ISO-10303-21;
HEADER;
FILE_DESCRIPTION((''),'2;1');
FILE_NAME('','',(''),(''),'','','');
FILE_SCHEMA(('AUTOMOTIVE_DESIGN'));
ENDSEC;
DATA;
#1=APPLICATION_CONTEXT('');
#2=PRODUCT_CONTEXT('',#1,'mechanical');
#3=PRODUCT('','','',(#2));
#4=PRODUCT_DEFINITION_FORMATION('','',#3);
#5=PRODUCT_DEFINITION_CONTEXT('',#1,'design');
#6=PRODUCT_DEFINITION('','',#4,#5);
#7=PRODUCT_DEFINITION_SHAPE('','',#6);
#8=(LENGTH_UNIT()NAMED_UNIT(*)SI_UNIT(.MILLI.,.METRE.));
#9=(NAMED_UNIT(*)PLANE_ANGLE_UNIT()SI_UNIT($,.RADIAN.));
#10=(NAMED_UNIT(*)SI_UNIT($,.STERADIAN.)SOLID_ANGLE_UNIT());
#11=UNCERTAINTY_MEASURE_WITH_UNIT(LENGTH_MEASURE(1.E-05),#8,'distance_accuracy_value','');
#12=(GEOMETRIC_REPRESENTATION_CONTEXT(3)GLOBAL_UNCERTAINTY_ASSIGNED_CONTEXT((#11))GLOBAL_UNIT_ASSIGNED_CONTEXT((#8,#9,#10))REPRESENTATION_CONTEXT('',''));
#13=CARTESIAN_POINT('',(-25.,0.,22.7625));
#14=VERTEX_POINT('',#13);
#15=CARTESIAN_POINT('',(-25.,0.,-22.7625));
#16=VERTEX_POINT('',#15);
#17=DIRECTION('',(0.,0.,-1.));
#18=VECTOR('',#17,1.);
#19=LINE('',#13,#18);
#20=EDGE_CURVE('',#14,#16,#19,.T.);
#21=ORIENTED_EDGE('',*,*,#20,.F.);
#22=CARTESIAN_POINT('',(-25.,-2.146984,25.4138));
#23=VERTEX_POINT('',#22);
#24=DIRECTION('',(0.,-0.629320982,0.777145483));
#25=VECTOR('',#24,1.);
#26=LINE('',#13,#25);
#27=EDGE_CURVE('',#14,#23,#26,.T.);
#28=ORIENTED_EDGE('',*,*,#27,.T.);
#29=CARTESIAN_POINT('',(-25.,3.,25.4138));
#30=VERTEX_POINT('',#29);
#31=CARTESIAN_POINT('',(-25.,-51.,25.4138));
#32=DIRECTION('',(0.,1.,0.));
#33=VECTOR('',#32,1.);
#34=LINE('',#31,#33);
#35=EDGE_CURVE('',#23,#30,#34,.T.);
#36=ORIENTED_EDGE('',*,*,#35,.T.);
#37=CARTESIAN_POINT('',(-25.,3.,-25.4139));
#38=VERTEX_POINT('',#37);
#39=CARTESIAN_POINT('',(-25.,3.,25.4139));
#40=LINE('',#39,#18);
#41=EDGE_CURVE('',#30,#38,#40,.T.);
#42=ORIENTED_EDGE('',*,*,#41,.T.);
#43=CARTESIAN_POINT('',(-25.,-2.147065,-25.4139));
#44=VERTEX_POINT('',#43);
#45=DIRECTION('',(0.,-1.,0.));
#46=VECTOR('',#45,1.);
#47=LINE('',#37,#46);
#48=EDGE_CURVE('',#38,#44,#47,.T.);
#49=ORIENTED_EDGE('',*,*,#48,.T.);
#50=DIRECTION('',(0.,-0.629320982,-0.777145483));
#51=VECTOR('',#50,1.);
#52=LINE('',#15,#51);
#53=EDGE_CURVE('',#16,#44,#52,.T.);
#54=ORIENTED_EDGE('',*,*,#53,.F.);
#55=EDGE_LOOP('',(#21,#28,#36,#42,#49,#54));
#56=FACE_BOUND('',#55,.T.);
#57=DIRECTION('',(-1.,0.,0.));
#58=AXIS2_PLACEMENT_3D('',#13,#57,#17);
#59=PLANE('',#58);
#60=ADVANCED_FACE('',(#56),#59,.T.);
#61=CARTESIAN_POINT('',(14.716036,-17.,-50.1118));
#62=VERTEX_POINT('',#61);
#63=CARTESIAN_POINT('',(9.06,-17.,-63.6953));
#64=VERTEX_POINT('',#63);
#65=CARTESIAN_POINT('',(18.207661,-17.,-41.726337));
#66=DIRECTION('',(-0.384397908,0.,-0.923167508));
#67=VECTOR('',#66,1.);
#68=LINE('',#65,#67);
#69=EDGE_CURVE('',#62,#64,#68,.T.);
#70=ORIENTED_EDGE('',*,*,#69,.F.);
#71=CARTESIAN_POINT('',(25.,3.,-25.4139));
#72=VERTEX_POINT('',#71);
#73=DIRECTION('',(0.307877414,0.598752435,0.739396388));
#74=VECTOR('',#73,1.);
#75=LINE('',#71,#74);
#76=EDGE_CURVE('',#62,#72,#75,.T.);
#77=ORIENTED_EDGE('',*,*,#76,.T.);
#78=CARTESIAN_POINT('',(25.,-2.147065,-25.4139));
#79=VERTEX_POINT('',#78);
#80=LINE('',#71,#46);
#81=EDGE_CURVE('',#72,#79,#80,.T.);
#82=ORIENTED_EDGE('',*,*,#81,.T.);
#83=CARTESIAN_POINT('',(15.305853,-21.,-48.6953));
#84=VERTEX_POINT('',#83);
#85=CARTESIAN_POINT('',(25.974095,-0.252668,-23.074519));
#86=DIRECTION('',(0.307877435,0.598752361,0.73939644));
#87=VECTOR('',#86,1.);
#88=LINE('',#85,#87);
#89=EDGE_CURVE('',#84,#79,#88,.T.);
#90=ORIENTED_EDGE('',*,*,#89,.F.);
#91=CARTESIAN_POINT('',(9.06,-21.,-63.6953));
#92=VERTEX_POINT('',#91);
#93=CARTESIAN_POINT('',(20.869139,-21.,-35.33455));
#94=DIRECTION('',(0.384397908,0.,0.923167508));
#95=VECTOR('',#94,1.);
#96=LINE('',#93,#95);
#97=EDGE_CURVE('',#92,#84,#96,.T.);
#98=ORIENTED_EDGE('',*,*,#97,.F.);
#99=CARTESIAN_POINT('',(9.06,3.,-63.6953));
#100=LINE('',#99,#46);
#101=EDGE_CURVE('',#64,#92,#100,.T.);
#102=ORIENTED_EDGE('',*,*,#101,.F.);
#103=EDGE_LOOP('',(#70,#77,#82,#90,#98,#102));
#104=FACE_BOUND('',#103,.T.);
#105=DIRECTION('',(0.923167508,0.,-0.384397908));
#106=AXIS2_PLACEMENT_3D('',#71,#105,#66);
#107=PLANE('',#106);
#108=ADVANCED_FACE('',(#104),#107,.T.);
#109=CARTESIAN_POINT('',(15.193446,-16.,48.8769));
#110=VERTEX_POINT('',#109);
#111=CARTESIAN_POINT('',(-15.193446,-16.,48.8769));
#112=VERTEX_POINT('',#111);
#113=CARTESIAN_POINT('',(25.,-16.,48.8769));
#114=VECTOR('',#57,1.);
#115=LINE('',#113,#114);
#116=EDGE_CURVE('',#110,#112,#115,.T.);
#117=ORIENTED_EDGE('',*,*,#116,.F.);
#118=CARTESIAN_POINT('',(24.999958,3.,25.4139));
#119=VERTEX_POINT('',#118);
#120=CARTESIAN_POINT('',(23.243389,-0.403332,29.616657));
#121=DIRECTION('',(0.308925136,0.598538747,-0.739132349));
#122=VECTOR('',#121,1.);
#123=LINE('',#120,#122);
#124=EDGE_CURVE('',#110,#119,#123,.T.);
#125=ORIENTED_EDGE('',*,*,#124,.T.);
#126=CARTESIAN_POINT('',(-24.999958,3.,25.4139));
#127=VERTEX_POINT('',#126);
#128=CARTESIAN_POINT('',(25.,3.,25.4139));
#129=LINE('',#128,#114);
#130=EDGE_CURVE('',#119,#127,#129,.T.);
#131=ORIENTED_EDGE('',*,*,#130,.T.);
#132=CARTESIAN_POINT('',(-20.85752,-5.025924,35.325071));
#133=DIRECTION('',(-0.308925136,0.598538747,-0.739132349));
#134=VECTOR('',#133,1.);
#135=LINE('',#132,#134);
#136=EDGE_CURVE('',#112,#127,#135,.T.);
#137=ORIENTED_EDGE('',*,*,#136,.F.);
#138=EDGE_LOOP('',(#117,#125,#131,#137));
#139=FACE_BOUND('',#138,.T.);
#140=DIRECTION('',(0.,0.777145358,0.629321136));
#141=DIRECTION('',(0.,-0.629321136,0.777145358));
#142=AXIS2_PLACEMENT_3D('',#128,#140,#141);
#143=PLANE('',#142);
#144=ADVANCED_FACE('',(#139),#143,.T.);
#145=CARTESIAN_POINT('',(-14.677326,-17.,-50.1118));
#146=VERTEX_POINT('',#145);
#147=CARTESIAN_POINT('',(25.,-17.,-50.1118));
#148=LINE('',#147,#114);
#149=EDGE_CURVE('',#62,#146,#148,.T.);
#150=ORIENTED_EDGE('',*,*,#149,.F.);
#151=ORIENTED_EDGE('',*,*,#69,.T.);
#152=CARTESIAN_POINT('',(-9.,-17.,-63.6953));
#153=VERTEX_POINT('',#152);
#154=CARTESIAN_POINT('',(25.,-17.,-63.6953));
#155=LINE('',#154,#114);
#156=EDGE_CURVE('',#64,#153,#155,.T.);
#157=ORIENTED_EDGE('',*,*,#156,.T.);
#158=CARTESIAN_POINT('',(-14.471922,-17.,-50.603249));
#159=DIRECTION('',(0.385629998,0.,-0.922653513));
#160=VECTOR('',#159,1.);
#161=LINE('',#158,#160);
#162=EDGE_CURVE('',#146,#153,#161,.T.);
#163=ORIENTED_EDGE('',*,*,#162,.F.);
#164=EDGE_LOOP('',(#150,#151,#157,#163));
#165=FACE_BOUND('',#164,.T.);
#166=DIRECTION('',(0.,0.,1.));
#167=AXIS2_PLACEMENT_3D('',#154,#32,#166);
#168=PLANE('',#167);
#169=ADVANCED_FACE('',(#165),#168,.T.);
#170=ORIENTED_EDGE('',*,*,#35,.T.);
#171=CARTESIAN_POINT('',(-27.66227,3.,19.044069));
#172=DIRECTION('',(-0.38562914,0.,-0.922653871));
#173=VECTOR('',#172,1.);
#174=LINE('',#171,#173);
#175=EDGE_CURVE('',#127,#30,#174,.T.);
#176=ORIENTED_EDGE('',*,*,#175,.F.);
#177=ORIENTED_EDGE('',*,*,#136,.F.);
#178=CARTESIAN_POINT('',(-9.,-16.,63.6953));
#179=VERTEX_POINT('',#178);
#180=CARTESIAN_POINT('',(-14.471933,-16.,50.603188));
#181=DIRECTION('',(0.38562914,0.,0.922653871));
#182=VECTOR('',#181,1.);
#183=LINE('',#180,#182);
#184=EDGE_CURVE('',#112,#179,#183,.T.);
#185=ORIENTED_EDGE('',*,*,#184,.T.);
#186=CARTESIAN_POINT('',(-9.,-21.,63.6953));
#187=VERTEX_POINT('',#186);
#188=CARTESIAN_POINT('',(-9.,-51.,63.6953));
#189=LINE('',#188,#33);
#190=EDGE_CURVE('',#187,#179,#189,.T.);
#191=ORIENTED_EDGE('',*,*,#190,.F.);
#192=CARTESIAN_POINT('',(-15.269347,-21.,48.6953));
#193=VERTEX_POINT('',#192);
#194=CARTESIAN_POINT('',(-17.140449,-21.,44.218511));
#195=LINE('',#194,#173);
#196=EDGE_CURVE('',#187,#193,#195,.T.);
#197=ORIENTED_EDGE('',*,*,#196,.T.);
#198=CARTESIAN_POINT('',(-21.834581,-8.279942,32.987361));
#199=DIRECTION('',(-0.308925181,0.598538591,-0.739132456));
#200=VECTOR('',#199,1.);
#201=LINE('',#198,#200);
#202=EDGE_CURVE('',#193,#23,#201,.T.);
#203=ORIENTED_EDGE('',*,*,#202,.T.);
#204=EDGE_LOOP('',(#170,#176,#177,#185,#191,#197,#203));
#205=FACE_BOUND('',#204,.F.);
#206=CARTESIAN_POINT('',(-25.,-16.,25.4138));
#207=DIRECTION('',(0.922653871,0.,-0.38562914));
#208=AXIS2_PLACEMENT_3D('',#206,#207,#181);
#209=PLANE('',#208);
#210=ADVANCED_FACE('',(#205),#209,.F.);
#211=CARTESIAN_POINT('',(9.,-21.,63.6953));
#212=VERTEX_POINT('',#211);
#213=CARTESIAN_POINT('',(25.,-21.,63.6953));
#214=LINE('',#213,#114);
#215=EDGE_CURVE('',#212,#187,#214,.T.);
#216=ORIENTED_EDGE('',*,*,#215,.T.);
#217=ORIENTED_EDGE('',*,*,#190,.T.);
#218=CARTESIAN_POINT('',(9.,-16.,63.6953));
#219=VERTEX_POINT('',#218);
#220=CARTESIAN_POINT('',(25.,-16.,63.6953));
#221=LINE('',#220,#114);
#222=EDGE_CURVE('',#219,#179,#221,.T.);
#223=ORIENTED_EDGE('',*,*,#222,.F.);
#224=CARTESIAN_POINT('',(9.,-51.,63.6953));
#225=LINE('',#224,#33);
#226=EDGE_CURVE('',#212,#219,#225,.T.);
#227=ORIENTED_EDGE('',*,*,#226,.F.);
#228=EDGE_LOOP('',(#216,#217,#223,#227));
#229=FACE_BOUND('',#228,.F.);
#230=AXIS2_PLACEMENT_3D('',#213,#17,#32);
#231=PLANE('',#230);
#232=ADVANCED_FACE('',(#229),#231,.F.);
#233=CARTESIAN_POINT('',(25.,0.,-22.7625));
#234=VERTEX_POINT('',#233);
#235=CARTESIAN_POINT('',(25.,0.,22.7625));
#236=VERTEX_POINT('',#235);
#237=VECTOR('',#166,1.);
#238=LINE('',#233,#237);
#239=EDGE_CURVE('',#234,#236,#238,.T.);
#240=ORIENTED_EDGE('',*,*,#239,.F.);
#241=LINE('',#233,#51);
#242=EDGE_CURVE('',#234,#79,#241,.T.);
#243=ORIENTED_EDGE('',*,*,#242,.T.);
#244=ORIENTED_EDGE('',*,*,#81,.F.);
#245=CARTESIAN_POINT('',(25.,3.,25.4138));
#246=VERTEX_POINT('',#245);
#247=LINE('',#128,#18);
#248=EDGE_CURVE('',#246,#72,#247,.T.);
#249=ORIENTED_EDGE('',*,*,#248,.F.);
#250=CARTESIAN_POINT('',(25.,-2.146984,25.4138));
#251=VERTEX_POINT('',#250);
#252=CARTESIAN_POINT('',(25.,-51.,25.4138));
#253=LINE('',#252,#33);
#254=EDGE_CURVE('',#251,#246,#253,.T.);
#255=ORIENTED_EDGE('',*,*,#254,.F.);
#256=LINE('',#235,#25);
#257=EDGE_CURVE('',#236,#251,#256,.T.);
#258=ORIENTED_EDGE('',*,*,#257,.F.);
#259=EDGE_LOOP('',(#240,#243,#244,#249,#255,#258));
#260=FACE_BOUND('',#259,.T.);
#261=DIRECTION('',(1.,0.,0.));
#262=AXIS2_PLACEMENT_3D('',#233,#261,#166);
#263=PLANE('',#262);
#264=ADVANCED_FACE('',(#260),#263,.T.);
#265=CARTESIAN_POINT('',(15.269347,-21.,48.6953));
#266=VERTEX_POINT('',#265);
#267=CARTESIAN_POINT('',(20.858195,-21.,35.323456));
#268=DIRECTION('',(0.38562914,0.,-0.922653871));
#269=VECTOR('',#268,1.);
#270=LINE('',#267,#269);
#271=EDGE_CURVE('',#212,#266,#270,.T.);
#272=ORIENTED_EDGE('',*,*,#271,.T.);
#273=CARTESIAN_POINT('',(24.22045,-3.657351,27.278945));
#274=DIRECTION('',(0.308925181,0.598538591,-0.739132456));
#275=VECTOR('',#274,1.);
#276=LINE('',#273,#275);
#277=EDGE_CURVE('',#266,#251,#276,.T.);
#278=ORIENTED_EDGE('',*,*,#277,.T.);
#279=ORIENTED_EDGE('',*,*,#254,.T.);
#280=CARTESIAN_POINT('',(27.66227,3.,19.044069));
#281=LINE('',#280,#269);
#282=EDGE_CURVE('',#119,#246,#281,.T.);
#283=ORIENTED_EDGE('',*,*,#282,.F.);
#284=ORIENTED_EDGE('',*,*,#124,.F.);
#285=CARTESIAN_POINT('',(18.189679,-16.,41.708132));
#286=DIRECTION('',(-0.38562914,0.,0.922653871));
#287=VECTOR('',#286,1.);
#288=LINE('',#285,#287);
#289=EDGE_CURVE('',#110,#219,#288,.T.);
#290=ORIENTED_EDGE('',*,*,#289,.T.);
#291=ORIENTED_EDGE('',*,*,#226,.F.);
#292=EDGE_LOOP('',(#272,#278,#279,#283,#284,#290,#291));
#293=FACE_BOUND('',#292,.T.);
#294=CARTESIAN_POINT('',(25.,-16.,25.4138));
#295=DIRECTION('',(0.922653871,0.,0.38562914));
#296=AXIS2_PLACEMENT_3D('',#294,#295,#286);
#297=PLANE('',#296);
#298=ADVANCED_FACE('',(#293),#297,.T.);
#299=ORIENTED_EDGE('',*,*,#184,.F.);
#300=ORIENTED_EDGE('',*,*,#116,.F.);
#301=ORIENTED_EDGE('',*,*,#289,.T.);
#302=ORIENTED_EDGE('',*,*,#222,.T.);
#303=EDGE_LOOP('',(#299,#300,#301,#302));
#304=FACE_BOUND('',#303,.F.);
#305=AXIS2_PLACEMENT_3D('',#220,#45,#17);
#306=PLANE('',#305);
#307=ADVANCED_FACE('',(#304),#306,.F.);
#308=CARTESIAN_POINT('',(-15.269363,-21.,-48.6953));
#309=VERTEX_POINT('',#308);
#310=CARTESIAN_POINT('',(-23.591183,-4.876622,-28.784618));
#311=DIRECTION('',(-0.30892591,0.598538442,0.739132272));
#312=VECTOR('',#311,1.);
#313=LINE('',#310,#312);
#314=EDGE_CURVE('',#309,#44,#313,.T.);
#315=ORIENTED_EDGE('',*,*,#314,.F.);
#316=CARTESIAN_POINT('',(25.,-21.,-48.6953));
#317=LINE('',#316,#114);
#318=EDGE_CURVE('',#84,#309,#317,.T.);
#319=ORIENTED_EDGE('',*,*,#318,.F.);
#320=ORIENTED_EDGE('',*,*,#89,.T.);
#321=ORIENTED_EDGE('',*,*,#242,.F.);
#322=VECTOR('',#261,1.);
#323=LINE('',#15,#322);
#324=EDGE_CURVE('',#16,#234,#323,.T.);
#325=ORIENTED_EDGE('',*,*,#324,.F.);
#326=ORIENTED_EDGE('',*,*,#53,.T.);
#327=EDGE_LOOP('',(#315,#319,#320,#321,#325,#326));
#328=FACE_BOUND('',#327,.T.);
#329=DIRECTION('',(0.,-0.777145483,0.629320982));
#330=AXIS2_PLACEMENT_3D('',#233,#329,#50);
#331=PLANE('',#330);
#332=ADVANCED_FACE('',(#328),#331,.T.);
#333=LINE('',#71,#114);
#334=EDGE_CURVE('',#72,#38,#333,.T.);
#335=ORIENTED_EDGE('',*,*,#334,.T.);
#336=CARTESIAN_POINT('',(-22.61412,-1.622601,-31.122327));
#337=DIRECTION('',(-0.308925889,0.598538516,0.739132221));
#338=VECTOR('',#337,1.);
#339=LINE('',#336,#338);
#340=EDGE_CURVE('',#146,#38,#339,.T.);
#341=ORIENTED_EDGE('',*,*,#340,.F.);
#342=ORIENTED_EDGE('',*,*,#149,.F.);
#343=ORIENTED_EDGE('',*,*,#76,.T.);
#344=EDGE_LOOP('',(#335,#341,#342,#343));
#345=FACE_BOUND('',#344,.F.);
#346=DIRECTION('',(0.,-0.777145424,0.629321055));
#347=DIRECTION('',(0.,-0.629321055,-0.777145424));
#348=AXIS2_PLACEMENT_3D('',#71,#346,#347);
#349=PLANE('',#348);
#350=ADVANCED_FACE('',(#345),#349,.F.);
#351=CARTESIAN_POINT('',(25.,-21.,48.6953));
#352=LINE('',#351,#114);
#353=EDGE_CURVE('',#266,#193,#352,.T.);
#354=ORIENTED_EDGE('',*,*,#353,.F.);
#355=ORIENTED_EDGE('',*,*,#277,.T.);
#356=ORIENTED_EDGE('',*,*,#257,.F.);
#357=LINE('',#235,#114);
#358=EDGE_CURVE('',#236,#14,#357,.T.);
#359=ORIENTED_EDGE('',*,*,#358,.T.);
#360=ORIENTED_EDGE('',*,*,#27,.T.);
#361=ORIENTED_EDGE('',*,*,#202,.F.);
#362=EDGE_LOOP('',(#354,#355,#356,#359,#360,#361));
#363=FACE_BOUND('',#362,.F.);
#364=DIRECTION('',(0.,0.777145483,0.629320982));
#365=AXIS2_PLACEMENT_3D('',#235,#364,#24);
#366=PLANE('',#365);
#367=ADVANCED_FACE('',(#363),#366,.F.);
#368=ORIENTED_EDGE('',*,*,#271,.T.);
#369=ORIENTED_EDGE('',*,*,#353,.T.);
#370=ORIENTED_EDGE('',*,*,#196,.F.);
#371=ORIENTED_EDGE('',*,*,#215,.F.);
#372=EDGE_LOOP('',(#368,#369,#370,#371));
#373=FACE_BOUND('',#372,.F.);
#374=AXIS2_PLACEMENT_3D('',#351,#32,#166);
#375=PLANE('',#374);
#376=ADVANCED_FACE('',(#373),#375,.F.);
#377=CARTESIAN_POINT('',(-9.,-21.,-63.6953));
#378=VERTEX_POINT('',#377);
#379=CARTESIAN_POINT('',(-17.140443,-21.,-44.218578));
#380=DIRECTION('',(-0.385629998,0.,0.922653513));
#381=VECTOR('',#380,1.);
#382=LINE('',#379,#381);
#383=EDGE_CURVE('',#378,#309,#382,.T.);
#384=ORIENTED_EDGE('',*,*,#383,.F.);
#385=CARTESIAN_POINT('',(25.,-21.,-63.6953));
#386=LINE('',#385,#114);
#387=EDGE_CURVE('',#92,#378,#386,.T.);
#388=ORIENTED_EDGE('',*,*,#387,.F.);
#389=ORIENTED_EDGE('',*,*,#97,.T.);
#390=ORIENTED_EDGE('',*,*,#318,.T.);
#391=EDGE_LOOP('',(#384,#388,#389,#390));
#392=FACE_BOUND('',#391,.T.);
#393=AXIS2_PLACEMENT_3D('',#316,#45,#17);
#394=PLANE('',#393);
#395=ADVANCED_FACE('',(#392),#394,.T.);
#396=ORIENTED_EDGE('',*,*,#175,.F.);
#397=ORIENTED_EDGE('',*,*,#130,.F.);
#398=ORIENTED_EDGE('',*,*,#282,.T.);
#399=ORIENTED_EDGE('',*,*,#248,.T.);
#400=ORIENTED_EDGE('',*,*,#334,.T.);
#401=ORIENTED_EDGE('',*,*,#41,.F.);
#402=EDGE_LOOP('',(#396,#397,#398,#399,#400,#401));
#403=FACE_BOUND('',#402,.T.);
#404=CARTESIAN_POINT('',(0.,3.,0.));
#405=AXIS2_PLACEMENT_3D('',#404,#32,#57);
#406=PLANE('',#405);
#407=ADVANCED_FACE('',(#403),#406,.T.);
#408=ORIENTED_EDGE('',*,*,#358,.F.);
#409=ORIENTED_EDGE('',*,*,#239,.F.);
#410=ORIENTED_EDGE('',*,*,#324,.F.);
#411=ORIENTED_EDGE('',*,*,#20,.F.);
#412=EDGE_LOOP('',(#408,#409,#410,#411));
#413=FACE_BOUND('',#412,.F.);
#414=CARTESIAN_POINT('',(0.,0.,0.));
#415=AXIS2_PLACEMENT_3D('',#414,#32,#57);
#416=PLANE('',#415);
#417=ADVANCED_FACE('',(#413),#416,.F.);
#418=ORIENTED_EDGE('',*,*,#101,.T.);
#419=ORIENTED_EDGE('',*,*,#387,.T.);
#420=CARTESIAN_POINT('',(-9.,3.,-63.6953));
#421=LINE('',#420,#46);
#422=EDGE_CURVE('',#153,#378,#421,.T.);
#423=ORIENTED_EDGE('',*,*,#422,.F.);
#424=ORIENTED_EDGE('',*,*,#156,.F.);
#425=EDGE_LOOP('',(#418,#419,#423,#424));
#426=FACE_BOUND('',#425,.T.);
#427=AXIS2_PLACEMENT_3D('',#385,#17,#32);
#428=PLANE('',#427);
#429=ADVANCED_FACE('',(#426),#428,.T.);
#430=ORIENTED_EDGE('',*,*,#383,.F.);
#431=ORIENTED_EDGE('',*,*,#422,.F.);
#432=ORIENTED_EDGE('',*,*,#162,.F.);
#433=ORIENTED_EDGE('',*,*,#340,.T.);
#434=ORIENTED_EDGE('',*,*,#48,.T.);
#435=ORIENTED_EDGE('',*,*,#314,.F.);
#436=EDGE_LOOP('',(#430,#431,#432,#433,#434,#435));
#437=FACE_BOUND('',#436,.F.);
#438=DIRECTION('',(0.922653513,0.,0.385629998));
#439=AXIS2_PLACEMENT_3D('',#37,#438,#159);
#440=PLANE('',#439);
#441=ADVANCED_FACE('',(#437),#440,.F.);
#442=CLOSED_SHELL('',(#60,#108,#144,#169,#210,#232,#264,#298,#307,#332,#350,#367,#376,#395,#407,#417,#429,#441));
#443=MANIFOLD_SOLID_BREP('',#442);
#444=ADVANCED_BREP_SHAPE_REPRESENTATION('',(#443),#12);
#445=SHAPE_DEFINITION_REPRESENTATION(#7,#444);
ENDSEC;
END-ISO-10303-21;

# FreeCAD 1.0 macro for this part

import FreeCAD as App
import Part
import Sketcher
from FreeCAD import Vector
Q = App.Units.Quantity


def add_polygon(sketch, points):
    """Adds a closed chain of lines whose ends are joined by coincident constraints."""
    first, n = sketch.GeometryCount, len(points)
    for a, b in zip(points, points[1:] + points[:1]):
        sketch.addGeometry(Part.LineSegment(App.Vector(*a, 0), App.Vector(*b, 0)), False)
    for i in range(n):
        sketch.addConstraint(Sketcher.Constraint("Coincident", first + i, 2, first + (i + 1) % n, 1))

doc = App.newDocument("Part")
body = doc.addObject("PartDesign::Body", "Body")

# Sketch on XZ plane
sketch1 = body.newObject("Sketcher::SketchObject", "Sketch")
sketch1.AttachmentSupport = (doc.getObject("XZ_Plane"), [""])
sketch1.MapMode = "FlatFace"
add_polygon(sketch1, [(-25, 23), (25, 23), (25, -23), (-25, -23)])  # lines 0-3
sketch1.addConstraint([
    Sketcher.Constraint("Horizontal", 0),
    Sketcher.Constraint("Vertical", 1),
    Sketcher.Constraint("Horizontal", 2),
    Sketcher.Constraint("Vertical", 3),
    Sketcher.Constraint("Symmetric", 0, 2, 2, 2, -1, 1),
    Sketcher.Constraint("DistanceX", 0, 1, 0, 2, Q("50 mm")),
    Sketcher.Constraint("DistanceY", 1, 2, 1, 1, Q("45.525 mm")),
])
pad1 = body.newObject("PartDesign::Pad", "Pad")
pad1.Profile = sketch1
pad1.Length = 3
pad1.Reversed = True

# Sketch on YZ plane
sketch2 = body.newObject("Sketcher::SketchObject", "Sketch001")
sketch2.AttachmentSupport = (doc.getObject("YZ_Plane"), [""])
sketch2.MapMode = "FlatFace"
sketch2.AttachmentOffset = App.Placement(Vector(0, 0, 25), App.Rotation())
add_polygon(sketch2, [(3, -22.8), (0, -22.8), (-21, -48.7), (-21, -63.7), (-17, -63.7), (-17, -50.1), (3, -25.4)])  # lines 0-6
add_polygon(sketch2, [(-21, 48.7), (0, 22.8), (3, 22.8), (3, 25.4), (-16, 48.9), (-16, 63.7), (-21, 63.7)])  # lines 7-13
sketch2.addConstraint([
    Sketcher.Constraint("Horizontal", 0),
    Sketcher.Constraint("Vertical", 2),
    Sketcher.Constraint("Horizontal", 3),
    Sketcher.Constraint("Vertical", 4),
    Sketcher.Constraint("Vertical", 6),
    Sketcher.Constraint("Horizontal", 8),
    Sketcher.Constraint("Vertical", 9),
    Sketcher.Constraint("Vertical", 11),
    Sketcher.Constraint("Horizontal", 12),
    Sketcher.Constraint("Vertical", 13),
    Sketcher.Constraint("Symmetric", 0, 2, 7, 2, -1, 1),
    Sketcher.Constraint("Symmetric", 5, 2, 9, 2, -1),
    Sketcher.Constraint("Symmetric", 2, 2, 12, 2, -1),
    Sketcher.Constraint("PointOnObject", 0, 2, -2),
    Sketcher.Constraint("Parallel", 1, 5),
    Sketcher.Constraint("Parallel", 7, 10),
    Sketcher.Constraint("Equal", 2, 13),
    Sketcher.Constraint("DistanceX", 3, 1, 3, 2, Q("4 mm")),
    Sketcher.Constraint("DistanceX", 12, 2, 12, 1, Q("5 mm")),
    Sketcher.Constraint("DistanceY", 2, 2, 2, 1, Q("15 mm")),
    Sketcher.Constraint("DistanceX", 1, 2, -1, 1, Q("21 mm")),
    Sketcher.Constraint("DistanceX", 0, 2, 0, 1, Q("3 mm")),
    Sketcher.Constraint("Angle", 1, Q("-129 deg")),
    Sketcher.Constraint("DistanceY", 4, 1, 4, 2, Q("13.5835 mm")),
    Sketcher.Constraint("DistanceY", 5, 2, -1, 1, Q("25.414 mm")),
])
pad2 = body.newObject("PartDesign::Pad", "Pad001")
pad2.Profile = sketch2
pad2.Length = 50
pad2.Reversed = True

# Sketch on XZ plane
sketch3 = body.newObject("Sketcher::SketchObject", "Sketch002")
sketch3.AttachmentSupport = (doc.getObject("XZ_Plane"), [""])
sketch3.MapMode = "FlatFace"
sketch3.AttachmentOffset = App.Placement(Vector(0, 0, 16), App.Rotation())
add_polygon(sketch3, [(25, 64), (25, 25), (9, 64)])  # lines 0-2
add_polygon(sketch3, [(-25, 64), (-9, 64), (-25, 25)])  # lines 3-5
sketch3.addConstraint([
    Sketcher.Constraint("Vertical", 0),
    Sketcher.Constraint("Horizontal", 2),
    Sketcher.Constraint("Horizontal", 3),
    Sketcher.Constraint("Vertical", 5),
    Sketcher.Constraint("Symmetric", 1, 2, 3, 2, -2),
    Sketcher.Constraint("Symmetric", 0, 2, 4, 2, -2),
    Sketcher.Constraint("DistanceX", 2, 1, 2, 2, Q("16 mm")),
    Sketcher.Constraint("DistanceX", -1, 1, 0, 2, Q("25 mm")),
    Sketcher.Constraint("DistanceY", 0, 2, 0, 1, Q("38.2815 mm")),
    Sketcher.Constraint("DistanceY", -1, 1, 0, 2, Q("25.4138 mm")),
])
pocket1 = body.newObject("PartDesign::Pocket", "Pocket")
pocket1.Profile = sketch3
pocket1.Length = 70
pocket1.Midplane = True

# Sketch on XZ plane
sketch4 = body.newObject("Sketcher::SketchObject", "Sketch003")
sketch4.AttachmentSupport = (doc.getObject("XZ_Plane"), [""])
sketch4.MapMode = "FlatFace"
sketch4.AttachmentOffset = App.Placement(Vector(0, 0, -3), App.Rotation())
add_polygon(sketch4, [(-25, -64), (-25, -25), (-9, -64)])  # lines 0-2
add_polygon(sketch4, [(25, -64), (9, -64), (25, -25)])  # lines 3-5
sketch4.addConstraint([
    Sketcher.Constraint("Vertical", 0),
    Sketcher.Constraint("Horizontal", 2),
    Sketcher.Constraint("Horizontal", 3),
    Sketcher.Constraint("Vertical", 5),
    Sketcher.Constraint("Symmetric", 0, 2, 4, 2, -2),
    Sketcher.Constraint("Horizontal", 2, 2, 3, 2),
    Sketcher.Constraint("DistanceX", 2, 2, 2, 1, Q("16 mm")),
    Sketcher.Constraint("DistanceX", 0, 2, -1, 1, Q("25 mm")),
    Sketcher.Constraint("DistanceX", 3, 2, 3, 1, Q("15.94 mm")),
    Sketcher.Constraint("DistanceY", 0, 1, 0, 2, Q("38.2814 mm")),
    Sketcher.Constraint("DistanceY", 0, 2, -1, 1, Q("25.414 mm")),
])
pocket2 = body.newObject("PartDesign::Pocket", "Pocket001")
pocket2.Profile = sketch4
pocket2.Length = 70
pocket2.Reversed = True

doc.recompute()
